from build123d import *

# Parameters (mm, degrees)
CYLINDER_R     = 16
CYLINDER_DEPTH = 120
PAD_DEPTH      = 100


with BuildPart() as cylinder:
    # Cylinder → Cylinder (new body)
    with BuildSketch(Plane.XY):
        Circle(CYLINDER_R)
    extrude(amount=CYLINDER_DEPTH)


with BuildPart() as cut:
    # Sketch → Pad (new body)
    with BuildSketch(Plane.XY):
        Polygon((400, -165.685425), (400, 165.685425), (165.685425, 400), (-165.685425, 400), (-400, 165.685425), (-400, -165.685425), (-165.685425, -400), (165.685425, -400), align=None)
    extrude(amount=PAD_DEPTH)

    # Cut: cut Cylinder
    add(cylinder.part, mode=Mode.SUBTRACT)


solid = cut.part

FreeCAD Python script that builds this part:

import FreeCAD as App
import Part
import Sketcher

V = App.Vector
Q = App.Units.Quantity

doc = App.newDocument("Part")
body = doc.addObject("PartDesign::Body", "Body")

# Sketch on XY plane
sketch1 = doc.addObject("Sketcher::SketchObject", "Sketch")
body.addObject(sketch1)
sketch1.AttachmentSupport = (doc.XY_Plane, [""])
sketch1.MapMode = "FlatFace"
sketch1.addGeometry(Part.Circle(V(0, 0, 0), V(0, 0, 1), 16), False)
sketch1.addConstraint([
    Sketcher.Constraint("Coincident", 0, 3, -1, 1),
    Sketcher.Constraint("Diameter", 0, Q("32 mm")),
])
pad1 = doc.addObject("PartDesign::Pad", "Pad")
body.addObject(pad1)
pad1.Profile = sketch1
pad1.Length = 120
body2 = doc.addObject("PartDesign::Body", "Body001")

# Sketch on XY plane
sketch2 = doc.addObject("Sketcher::SketchObject", "Sketch001")
body2.addObject(sketch2)
sketch2.AttachmentSupport = (doc.getObject("XY_Plane001"), [""])
sketch2.MapMode = "FlatFace"
sketch2.addGeometry([
    Part.LineSegment(V(400, -166, 0), V(400, 166, 0)),  # 0
    Part.LineSegment(V(400, 166, 0), V(166, 400, 0)),  # 1
    Part.LineSegment(V(166, 400, 0), V(-166, 400, 0)),  # 2
    Part.LineSegment(V(-166, 400, 0), V(-400, 166, 0)),  # 3
    Part.LineSegment(V(-400, 166, 0), V(-400, -166, 0)),  # 4
    Part.LineSegment(V(-400, -166, 0), V(-166, -400, 0)),  # 5
    Part.LineSegment(V(-166, -400, 0), V(166, -400, 0)),  # 6
    Part.LineSegment(V(166, -400, 0), V(400, -166, 0)),  # 7
], False)
sketch2.addConstraint([
    Sketcher.Constraint("Coincident", 0, 2, 1, 1),
    Sketcher.Constraint("Coincident", 1, 2, 2, 1),
    Sketcher.Constraint("Coincident", 2, 2, 3, 1),
    Sketcher.Constraint("Coincident", 3, 2, 4, 1),
    Sketcher.Constraint("Coincident", 4, 2, 5, 1),
    Sketcher.Constraint("Coincident", 5, 2, 6, 1),
    Sketcher.Constraint("Coincident", 6, 2, 7, 1),
    Sketcher.Constraint("Coincident", 7, 2, 0, 1),
    Sketcher.Constraint("Vertical", 0),
    Sketcher.Constraint("Horizontal", 2),
    Sketcher.Constraint("Vertical", 4),
    Sketcher.Constraint("Horizontal", 6),
    Sketcher.Constraint("Symmetric", 0, 2, 4, 2, -1, 1),
    Sketcher.Constraint("Symmetric", 1, 2, 5, 2, -1, 1),
    Sketcher.Constraint("Perpendicular", 1, 3),
    Sketcher.Constraint("Perpendicular", 5, 7),
    Sketcher.Constraint("Horizontal", 0, 2, 3, 2),
    Sketcher.Constraint("Horizontal", 4, 2, 7, 2),
    Sketcher.Constraint("Vertical", 2, 2, 5, 2),
    Sketcher.Constraint("Equal", 6, 0),
    Sketcher.Constraint("DistanceX", -1, 1, 0, 2, Q("400 mm")),
    Sketcher.Constraint("DistanceX", 2, 2, 2, 1, Q("331.37085 mm")),
])
pad2 = doc.addObject("PartDesign::Pad", "Pad001")
body2.addObject(pad2)
pad2.Profile = sketch2
pad2.Length = 100
doc.recompute()

boolean = doc.addObject("PartDesign::Boolean", "Boolean")
body2.addObject(boolean)
boolean.Type = "Cut"
boolean.addObjects([body])

doc.recompute()
